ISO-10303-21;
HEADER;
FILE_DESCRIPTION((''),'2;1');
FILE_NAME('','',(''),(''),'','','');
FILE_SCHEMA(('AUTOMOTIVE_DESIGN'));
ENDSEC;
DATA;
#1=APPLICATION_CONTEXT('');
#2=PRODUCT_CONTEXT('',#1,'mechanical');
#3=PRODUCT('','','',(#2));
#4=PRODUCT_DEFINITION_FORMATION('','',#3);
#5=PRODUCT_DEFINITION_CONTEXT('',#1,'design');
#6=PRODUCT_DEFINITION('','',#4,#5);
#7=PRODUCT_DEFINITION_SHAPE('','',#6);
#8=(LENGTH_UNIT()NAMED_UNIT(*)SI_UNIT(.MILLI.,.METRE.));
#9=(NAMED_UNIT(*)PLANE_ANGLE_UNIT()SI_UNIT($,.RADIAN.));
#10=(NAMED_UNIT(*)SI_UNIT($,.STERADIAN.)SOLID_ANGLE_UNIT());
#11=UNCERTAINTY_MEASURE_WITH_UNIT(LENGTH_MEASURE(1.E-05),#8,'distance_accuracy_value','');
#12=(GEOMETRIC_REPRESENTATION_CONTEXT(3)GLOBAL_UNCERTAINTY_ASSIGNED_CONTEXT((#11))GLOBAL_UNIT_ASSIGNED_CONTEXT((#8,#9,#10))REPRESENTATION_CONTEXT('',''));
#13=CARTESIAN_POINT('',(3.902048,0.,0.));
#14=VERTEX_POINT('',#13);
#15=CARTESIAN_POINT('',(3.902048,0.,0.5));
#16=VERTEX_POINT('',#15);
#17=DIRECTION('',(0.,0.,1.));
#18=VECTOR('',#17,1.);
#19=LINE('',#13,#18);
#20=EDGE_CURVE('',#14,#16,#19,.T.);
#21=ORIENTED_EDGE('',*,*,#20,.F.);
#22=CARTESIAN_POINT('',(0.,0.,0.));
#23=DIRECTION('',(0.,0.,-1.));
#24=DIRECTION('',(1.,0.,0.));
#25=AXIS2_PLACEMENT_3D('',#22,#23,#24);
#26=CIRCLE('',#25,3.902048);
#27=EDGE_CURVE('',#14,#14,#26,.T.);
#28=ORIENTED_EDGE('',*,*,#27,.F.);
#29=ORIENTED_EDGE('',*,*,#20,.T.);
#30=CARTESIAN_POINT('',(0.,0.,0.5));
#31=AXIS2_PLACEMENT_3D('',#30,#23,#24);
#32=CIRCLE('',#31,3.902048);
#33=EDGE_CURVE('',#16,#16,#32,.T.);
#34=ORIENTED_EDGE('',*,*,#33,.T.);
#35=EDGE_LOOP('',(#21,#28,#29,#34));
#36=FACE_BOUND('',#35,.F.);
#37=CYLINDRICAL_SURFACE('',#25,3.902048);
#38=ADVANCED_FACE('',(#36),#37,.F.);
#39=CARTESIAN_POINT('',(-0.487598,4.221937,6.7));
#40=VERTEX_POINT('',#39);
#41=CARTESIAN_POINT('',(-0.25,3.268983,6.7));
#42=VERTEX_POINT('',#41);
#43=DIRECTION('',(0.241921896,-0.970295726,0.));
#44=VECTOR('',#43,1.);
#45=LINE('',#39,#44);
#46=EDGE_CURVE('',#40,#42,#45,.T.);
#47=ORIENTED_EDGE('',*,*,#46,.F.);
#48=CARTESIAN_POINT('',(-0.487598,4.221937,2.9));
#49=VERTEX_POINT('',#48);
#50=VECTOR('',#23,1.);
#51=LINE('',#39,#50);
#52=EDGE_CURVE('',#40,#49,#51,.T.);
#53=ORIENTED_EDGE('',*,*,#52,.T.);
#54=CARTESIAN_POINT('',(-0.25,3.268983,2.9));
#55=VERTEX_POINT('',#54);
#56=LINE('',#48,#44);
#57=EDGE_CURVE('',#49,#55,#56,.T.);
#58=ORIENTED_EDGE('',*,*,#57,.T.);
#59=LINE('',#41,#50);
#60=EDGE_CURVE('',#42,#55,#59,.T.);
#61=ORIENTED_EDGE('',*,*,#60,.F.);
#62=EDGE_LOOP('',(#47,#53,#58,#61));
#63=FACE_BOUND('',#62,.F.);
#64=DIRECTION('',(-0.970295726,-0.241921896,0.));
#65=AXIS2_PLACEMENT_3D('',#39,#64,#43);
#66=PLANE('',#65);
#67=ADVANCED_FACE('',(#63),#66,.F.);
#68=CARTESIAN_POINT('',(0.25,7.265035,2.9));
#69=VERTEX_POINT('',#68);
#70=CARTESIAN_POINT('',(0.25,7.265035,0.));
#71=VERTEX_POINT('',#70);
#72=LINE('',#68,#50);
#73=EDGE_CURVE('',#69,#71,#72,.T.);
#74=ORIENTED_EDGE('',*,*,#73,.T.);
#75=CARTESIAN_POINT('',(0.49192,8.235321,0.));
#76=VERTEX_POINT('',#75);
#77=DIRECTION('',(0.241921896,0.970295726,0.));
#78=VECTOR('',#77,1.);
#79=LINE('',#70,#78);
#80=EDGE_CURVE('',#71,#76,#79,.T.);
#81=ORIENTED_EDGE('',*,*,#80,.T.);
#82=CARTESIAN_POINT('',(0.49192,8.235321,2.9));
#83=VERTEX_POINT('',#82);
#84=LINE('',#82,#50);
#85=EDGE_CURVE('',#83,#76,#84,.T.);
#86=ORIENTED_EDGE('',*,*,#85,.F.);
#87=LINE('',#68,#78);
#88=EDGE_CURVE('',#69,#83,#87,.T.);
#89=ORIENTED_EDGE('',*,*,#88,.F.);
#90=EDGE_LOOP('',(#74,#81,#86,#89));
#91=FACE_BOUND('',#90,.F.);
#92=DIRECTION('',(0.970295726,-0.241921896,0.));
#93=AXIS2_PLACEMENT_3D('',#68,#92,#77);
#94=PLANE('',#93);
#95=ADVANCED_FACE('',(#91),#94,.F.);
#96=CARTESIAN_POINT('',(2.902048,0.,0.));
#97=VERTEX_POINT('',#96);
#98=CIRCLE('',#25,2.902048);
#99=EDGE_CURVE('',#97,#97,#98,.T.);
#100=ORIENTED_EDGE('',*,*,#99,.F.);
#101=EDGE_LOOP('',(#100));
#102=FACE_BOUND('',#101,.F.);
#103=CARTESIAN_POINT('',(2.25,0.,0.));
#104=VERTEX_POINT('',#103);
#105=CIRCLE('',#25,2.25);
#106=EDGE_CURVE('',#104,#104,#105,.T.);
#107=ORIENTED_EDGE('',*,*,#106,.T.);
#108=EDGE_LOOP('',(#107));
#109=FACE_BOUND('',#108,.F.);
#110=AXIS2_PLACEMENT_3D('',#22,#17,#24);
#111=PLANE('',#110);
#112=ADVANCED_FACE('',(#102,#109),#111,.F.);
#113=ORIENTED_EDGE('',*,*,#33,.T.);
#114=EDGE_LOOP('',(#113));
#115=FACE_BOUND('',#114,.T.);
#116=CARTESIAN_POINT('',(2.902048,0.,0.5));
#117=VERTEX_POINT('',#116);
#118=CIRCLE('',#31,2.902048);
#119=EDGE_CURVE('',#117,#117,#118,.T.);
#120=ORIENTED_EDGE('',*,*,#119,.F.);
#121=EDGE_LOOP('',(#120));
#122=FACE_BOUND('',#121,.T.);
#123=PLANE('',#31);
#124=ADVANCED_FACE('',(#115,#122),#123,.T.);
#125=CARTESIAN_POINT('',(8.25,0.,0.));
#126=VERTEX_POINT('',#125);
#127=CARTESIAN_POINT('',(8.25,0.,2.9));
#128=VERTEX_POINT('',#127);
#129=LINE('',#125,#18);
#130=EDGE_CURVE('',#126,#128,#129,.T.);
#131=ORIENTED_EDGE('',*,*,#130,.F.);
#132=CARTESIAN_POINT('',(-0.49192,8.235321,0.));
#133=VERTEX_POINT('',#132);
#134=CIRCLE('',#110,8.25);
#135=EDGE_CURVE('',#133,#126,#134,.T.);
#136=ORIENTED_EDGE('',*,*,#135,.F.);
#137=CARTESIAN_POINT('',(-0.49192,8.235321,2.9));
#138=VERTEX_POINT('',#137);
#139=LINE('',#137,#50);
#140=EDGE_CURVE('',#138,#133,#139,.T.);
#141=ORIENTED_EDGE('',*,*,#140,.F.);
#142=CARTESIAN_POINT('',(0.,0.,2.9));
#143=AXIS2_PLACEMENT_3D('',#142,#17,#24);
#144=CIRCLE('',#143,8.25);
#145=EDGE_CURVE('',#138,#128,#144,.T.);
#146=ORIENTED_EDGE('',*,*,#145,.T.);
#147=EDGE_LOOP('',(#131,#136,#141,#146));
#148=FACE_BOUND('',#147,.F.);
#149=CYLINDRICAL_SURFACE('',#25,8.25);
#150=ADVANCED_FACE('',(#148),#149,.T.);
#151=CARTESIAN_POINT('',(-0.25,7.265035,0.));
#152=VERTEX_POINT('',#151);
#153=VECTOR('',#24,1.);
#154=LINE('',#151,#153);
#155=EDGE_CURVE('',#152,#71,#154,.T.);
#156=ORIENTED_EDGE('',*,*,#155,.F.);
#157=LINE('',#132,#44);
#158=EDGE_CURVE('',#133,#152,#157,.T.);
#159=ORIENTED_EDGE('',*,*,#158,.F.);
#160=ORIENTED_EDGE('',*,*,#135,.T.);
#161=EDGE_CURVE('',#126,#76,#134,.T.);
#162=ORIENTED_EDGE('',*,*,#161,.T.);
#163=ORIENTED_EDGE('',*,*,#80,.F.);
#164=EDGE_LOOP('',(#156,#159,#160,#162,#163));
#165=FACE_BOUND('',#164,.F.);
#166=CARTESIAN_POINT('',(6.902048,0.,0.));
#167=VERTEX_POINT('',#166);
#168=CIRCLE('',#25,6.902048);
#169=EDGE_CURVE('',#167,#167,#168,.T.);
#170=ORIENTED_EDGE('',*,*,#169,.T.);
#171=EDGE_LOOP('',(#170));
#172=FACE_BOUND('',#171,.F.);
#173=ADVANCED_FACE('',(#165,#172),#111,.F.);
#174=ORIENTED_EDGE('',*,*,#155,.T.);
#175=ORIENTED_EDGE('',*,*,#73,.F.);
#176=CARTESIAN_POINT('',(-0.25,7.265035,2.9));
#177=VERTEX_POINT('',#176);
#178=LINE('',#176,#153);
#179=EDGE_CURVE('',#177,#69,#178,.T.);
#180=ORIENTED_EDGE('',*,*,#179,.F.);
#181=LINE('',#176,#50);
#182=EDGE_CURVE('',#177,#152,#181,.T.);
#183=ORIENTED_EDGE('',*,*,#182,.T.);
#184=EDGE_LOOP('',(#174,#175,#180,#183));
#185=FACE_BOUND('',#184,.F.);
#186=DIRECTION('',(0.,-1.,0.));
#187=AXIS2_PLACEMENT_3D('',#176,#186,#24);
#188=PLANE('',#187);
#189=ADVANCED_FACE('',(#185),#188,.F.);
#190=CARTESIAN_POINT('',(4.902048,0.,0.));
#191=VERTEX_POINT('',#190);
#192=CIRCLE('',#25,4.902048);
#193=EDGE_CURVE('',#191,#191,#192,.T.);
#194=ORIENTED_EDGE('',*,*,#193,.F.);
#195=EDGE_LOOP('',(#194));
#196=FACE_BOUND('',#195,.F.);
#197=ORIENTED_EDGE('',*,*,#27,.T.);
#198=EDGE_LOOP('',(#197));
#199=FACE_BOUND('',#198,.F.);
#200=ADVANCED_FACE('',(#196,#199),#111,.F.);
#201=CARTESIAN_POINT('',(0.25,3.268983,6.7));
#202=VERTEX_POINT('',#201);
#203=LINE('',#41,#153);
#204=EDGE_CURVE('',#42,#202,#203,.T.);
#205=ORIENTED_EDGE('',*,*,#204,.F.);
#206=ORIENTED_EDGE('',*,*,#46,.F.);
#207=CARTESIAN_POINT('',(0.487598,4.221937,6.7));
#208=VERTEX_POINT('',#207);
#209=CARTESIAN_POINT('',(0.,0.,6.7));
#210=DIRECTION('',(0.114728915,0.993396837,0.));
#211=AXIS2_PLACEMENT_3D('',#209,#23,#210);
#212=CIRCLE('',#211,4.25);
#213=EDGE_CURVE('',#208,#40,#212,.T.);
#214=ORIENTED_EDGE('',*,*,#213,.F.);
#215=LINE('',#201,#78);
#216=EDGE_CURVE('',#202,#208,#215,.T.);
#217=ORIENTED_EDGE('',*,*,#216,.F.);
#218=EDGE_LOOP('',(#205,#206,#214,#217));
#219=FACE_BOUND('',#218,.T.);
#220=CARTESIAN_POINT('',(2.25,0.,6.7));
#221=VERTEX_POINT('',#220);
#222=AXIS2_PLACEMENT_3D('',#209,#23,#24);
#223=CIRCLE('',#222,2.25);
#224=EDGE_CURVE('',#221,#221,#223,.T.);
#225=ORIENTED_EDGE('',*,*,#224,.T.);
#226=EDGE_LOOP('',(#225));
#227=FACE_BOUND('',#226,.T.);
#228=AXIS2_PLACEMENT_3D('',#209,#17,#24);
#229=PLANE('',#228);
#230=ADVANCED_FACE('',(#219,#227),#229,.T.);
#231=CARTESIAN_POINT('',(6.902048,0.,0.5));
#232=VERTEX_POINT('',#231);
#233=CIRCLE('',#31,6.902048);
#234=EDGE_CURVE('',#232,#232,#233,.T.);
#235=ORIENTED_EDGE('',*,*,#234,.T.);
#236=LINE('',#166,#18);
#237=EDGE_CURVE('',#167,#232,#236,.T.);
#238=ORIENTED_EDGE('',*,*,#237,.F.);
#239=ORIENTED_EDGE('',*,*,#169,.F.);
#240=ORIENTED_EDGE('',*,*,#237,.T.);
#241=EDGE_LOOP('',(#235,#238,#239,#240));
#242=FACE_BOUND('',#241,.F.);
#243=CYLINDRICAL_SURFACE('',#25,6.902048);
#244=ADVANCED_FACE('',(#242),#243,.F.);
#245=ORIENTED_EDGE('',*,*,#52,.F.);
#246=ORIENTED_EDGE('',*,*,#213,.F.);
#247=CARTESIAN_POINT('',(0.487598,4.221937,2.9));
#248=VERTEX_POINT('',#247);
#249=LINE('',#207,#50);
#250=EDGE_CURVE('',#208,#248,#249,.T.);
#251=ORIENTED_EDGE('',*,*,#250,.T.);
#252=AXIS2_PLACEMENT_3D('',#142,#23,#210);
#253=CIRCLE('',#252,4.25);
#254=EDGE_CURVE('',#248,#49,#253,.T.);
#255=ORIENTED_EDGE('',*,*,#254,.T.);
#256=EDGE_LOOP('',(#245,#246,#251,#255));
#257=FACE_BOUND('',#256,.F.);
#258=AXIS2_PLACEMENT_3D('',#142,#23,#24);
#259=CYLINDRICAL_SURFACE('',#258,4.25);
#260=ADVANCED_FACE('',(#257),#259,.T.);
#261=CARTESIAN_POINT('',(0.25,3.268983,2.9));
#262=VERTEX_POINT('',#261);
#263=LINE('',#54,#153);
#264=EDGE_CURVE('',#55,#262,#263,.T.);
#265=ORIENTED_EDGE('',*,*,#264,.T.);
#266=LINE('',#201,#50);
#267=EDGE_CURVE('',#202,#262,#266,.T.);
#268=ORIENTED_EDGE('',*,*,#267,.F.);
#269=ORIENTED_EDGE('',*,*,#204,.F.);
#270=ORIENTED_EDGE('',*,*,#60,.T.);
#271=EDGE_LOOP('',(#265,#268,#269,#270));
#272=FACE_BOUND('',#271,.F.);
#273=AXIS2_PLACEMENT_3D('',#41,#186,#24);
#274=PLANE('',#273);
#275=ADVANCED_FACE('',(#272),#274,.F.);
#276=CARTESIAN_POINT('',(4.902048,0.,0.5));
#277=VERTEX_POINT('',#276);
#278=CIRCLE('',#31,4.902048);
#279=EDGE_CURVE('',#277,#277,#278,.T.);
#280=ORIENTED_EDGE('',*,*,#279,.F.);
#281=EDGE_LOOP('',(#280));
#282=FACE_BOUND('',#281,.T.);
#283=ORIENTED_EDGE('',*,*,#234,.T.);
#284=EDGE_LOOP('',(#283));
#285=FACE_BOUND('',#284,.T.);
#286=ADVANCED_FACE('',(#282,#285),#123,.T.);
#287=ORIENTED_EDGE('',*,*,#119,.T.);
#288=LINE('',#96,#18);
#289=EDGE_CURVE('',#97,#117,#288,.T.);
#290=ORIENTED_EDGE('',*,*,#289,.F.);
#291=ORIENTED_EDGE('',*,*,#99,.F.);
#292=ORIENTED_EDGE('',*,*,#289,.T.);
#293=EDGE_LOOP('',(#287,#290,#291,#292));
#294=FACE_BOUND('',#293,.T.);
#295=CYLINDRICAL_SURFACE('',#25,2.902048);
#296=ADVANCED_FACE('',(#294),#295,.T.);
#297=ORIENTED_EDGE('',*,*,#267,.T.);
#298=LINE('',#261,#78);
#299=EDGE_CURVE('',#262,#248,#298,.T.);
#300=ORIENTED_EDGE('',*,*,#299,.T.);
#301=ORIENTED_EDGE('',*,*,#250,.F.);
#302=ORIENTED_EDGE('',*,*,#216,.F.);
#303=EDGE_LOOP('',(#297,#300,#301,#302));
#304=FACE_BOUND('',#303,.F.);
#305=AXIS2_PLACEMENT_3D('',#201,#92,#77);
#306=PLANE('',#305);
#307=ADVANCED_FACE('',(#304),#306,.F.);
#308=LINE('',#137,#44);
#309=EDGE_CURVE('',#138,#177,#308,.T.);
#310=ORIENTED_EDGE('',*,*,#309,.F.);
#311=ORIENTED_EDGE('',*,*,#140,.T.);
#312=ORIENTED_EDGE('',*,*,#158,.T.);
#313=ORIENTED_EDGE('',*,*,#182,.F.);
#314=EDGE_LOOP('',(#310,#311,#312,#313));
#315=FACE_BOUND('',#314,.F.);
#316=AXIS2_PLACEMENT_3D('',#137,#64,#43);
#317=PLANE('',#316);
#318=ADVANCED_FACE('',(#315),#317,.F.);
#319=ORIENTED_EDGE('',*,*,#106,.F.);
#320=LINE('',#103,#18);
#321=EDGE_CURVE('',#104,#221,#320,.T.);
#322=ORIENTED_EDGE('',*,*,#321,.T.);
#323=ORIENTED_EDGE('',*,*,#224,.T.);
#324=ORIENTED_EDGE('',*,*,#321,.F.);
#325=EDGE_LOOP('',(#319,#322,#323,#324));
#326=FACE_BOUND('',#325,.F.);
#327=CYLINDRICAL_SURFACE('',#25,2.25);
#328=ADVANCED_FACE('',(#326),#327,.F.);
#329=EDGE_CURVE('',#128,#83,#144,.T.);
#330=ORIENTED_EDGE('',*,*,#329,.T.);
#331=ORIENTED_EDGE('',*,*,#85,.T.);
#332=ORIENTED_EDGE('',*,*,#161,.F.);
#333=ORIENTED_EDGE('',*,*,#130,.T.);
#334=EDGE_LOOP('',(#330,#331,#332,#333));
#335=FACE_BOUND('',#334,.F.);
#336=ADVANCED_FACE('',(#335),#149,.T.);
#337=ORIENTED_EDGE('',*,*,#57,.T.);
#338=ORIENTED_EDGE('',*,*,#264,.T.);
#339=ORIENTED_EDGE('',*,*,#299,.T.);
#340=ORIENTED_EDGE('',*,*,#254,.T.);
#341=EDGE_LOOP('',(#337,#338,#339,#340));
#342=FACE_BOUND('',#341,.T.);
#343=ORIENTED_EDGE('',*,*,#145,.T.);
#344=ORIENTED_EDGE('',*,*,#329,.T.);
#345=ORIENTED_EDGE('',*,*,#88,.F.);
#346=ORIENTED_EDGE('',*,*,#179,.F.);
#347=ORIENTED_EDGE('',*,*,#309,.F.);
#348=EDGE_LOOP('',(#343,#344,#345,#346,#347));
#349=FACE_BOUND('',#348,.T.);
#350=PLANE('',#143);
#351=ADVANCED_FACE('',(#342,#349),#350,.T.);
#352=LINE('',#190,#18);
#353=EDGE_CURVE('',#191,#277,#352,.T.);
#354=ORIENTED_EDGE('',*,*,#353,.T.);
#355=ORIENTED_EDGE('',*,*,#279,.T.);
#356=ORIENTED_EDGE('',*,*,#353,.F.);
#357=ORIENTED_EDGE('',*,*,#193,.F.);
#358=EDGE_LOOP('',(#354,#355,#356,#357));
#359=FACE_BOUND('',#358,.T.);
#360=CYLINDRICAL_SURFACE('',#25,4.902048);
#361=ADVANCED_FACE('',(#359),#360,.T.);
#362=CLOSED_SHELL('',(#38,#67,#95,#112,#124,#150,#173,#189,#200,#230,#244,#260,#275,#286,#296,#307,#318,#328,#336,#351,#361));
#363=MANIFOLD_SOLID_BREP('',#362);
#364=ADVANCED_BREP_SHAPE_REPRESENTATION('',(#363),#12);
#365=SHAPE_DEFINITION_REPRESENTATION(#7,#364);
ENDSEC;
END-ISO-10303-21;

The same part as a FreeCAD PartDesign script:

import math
import FreeCAD as App
import Part
import Sketcher
Q = App.Units.Quantity

doc = App.newDocument("Part")
body = doc.addObject("PartDesign::Body", "Body")

sketch1 = body.newObject("Sketcher::SketchObject", "Sketch")
sketch1.AttachmentSupport = (doc.getObject("XY_Plane"), [""])
sketch1.MapMode = "FlatFace"
sketch1.addGeometry(Part.Circle(App.Vector(0, 0, 0), App.Vector(0, 0, 1), 8), False)
sketch1.addConstraint(Sketcher.Constraint("Coincident", 0, 3, -1, 1))
sketch1.addConstraint(Sketcher.Constraint("Diameter", 0, Q("16.5 mm")))
pad1 = body.newObject("PartDesign::Pad", "Pad")
pad1.Profile = sketch1
pad1.Length = 2.9

sketch2 = body.newObject("Sketcher::SketchObject", "Sketch001")
sketch2.AttachmentSupport = (doc.getObject("XY_Plane"), [""])
sketch2.MapMode = "FlatFace"
sketch2.AttachmentOffset = App.Placement(App.Vector(0, 0, 2.9), App.Rotation())
sketch2.addGeometry(Part.Circle(App.Vector(0, 0, 0), App.Vector(0, 0, 1), 4.2), False)
sketch2.addConstraint(Sketcher.Constraint("Coincident", 0, 3, -1, 1))
sketch2.addConstraint(Sketcher.Constraint("Diameter", 0, Q("8.5 mm")))
pad2 = body.newObject("PartDesign::Pad", "Pad001")
pad2.Profile = sketch2
pad2.Length = 3.8

sketch3 = body.newObject("Sketcher::SketchObject", "Sketch002")
sketch3.AttachmentSupport = (doc.getObject("XY_Plane"), [""])
sketch3.MapMode = "FlatFace"
sketch3.AttachmentOffset = App.Placement(App.Vector(0, 0, 2.9), App.Rotation())
sketch3.addGeometry(Part.ArcOfCircle(Part.Circle(App.Vector(0, 0, 0), App.Vector(0, 0, 1), 8.3), math.radians(86.58), math.radians(93.42)), False)
sketch3.addGeometry(Part.LineSegment(App.Vector(-0.5, 8.2, 0), App.Vector(-0.2, 7.3, 0)), False)
sketch3.addGeometry(Part.LineSegment(App.Vector(-0.2, 7.3, 0), App.Vector(0.2, 7.3, 0)), False)
sketch3.addGeometry(Part.LineSegment(App.Vector(0.2, 7.3, 0), App.Vector(0.5, 8.2, 0)), False)
sketch3.addConstraint(Sketcher.Constraint("Coincident", 0, 2, 1, 1))
sketch3.addConstraint(Sketcher.Constraint("Coincident", 1, 2, 2, 1))
sketch3.addConstraint(Sketcher.Constraint("Coincident", 2, 2, 3, 1))
sketch3.addConstraint(Sketcher.Constraint("Coincident", 3, 2, 0, 1))
sketch3.addConstraint(Sketcher.Constraint("Horizontal", 2))
sketch3.addConstraint(Sketcher.Constraint("Coincident", 0, 3, -1, 1))
sketch3.addConstraint(Sketcher.Constraint("Horizontal", 0, 2, 3, 2))
sketch3.addConstraint(Sketcher.Constraint("Equal", 1, 3))
sketch3.addConstraint(Sketcher.Constraint("Angle", 1, Q("-76 deg")))
sketch3.addConstraint(Sketcher.Constraint("Radius", 0, Q("8.25 mm")))
sketch3.addConstraint(Sketcher.Constraint("DistanceX", 2, 1, 2, 2, Q("0.5 mm")))
sketch3.addConstraint(Sketcher.Constraint("Distance", 1, Q("0.99999 mm")))
pocket1 = body.newObject("PartDesign::Pocket", "Pocket")
pocket1.Profile = sketch3
pocket1.Length = 2.9

sketch4 = body.newObject("Sketcher::SketchObject", "Sketch003")
sketch4.AttachmentSupport = (doc.getObject("XY_Plane"), [""])
sketch4.MapMode = "FlatFace"
sketch4.AttachmentOffset = App.Placement(App.Vector(0, 0, 6.7), App.Rotation())
sketch4.addGeometry(Part.ArcOfCircle(Part.Circle(App.Vector(0, 0, 0), App.Vector(0, 0, 1), 4.3), math.radians(83.41), math.radians(96.59)), False)
sketch4.addGeometry(Part.LineSegment(App.Vector(-0.5, 4.2, 0), App.Vector(-0.2, 3.3, 0)), False)
sketch4.addGeometry(Part.LineSegment(App.Vector(-0.2, 3.3, 0), App.Vector(0.2, 3.3, 0)), False)
sketch4.addGeometry(Part.LineSegment(App.Vector(0.2, 3.3, 0), App.Vector(0.5, 4.2, 0)), False)
sketch4.addConstraint(Sketcher.Constraint("Coincident", 0, 2, 1, 1))
sketch4.addConstraint(Sketcher.Constraint("Coincident", 1, 2, 2, 1))
sketch4.addConstraint(Sketcher.Constraint("Coincident", 2, 2, 3, 1))
sketch4.addConstraint(Sketcher.Constraint("Coincident", 3, 2, 0, 1))
sketch4.addConstraint(Sketcher.Constraint("Horizontal", 2))
sketch4.addConstraint(Sketcher.Constraint("Coincident", 0, 3, -1, 1))
sketch4.addConstraint(Sketcher.Constraint("Horizontal", 0, 2, 3, 2))
sketch4.addConstraint(Sketcher.Constraint("Equal", 1, 3))
sketch4.addConstraint(Sketcher.Constraint("Angle", 1, Q("-76 deg")))
sketch4.addConstraint(Sketcher.Constraint("Radius", 0, Q("4.25 mm")))
sketch4.addConstraint(Sketcher.Constraint("DistanceX", 2, 1, 2, 2, Q("0.5 mm")))
sketch4.addConstraint(Sketcher.Constraint("Distance", 1, Q("0.982126 mm")))
pocket2 = body.newObject("PartDesign::Pocket", "Pocket001")
pocket2.Profile = sketch4
pocket2.Length = 3.8

sketch5 = body.newObject("Sketcher::SketchObject", "Sketch004")
sketch5.AttachmentSupport = (doc.getObject("XY_Plane"), [""])
sketch5.MapMode = "FlatFace"
sketch5.addGeometry(Part.Circle(App.Vector(0, 0, 0), App.Vector(0, 0, 1), 2.2), False)
sketch5.addConstraint(Sketcher.Constraint("Coincident", 0, 3, -1, 1))
sketch5.addConstraint(Sketcher.Constraint("Diameter", 0, Q("4.5 mm")))
pocket3 = body.newObject("PartDesign::Pocket", "Pocket002")
pocket3.Profile = sketch5
pocket3.Length = 6.7
pocket3.Reversed = True

sketch6 = body.newObject("Sketcher::SketchObject", "Sketch005")
sketch6.AttachmentSupport = (doc.getObject("XY_Plane"), [""])
sketch6.MapMode = "FlatFace"
sketch6.addGeometry(Part.Circle(App.Vector(0, 0, 0), App.Vector(0, 0, 1), 6.9), False)
sketch6.addGeometry(Part.Circle(App.Vector(0, 0, 0), App.Vector(0, 0, 1), 4.9), False)
sketch6.addGeometry(Part.Circle(App.Vector(0, 0, 0), App.Vector(0, 0, 1), 3.9), False)
sketch6.addGeometry(Part.Circle(App.Vector(0, 0, 0), App.Vector(0, 0, 1), 2.9), False)
sketch6.addConstraint(Sketcher.Constraint("Coincident", 0, 3, -1, 1))
sketch6.addConstraint(Sketcher.Constraint("Coincident", 1, 3, -1, 1))
sketch6.addConstraint(Sketcher.Constraint("Coincident", 2, 3, -1, 1))
sketch6.addConstraint(Sketcher.Constraint("Coincident", 3, 3, -1, 1))
sketch6.addConstraint(Sketcher.Constraint("Diameter", 0, Q("13.804096 mm")))
sketch6.addConstraint(Sketcher.Constraint("Diameter", 1, Q("9.804096 mm")))
sketch6.addConstraint(Sketcher.Constraint("Diameter", 2, Q("7.804096 mm")))
sketch6.addConstraint(Sketcher.Constraint("Diameter", 3, Q("5.804096 mm")))
pocket4 = body.newObject("PartDesign::Pocket", "Pocket003")
pocket4.Profile = sketch6
pocket4.Length = 0.5
pocket4.Reversed = True

doc.recompute()
